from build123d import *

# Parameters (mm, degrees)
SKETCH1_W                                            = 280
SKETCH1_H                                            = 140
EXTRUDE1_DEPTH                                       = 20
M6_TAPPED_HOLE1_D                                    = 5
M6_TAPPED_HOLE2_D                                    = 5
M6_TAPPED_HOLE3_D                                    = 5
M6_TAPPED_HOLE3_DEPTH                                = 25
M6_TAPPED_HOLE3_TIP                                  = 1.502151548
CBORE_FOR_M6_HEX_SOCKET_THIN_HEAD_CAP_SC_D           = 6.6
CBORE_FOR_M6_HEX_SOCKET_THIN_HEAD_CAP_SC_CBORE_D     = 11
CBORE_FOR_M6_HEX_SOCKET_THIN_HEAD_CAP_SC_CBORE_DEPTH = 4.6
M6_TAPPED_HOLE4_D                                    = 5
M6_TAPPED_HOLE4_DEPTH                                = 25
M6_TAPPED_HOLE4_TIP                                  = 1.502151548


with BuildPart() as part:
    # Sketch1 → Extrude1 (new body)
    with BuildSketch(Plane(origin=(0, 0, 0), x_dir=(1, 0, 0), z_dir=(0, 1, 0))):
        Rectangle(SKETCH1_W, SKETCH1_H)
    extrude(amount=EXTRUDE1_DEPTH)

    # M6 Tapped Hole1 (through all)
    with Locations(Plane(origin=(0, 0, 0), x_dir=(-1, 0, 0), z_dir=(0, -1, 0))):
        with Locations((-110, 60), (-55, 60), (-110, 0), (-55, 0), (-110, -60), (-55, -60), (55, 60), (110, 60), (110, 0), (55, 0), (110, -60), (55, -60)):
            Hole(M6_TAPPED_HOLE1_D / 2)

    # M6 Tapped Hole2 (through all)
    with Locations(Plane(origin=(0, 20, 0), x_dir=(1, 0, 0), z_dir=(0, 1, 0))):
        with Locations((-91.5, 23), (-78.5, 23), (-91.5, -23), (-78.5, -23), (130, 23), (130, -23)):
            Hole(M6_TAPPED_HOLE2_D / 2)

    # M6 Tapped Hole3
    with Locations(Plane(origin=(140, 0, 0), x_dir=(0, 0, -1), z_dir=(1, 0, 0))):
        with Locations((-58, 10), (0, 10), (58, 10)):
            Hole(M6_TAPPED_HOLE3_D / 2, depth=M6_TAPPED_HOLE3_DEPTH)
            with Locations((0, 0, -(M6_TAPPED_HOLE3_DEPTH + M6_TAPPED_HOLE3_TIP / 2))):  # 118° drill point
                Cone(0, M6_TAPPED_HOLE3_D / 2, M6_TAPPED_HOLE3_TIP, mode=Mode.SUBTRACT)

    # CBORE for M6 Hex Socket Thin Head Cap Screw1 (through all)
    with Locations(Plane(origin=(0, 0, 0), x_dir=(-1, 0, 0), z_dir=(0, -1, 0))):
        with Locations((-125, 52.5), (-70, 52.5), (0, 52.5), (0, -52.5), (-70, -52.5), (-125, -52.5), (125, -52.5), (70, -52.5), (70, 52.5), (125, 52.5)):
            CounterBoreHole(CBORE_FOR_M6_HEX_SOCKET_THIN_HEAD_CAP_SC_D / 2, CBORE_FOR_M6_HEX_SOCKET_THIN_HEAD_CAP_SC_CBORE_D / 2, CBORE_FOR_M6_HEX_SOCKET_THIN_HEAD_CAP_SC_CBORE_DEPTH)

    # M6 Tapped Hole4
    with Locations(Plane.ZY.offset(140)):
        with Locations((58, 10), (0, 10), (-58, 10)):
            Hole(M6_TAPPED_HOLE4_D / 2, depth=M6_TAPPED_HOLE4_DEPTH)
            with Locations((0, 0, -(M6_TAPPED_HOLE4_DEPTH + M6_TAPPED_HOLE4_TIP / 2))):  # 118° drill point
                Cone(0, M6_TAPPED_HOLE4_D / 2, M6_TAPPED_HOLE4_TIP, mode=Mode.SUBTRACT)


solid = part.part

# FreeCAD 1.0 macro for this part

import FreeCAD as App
import Part
import Sketcher


def add_polygon(sketch, points):
    """Adds a closed chain of lines whose ends are joined by coincident constraints."""
    first, n = sketch.GeometryCount, len(points)
    for a, b in zip(points, points[1:] + points[:1]):
        sketch.addGeometry(Part.LineSegment(App.Vector(*a, 0), App.Vector(*b, 0)), False)
    for i in range(n):
        sketch.addConstraint(Sketcher.Constraint("Coincident", first + i, 2, first + (i + 1) % n, 1))

doc = App.newDocument("Part")
body = doc.addObject("PartDesign::Body", "Body")

sketch1 = doc.addObject("Sketcher::SketchObject", "Sketch")
body.addObject(sketch1)
sketch1.AttachmentSupport = (doc.XZ_Plane, [""])
sketch1.MapMode = "FlatFace"
add_polygon(sketch1, [(-140, -70), (-140, 70), (140, 70), (140, -70)])
sketch1.addConstraint(Sketcher.Constraint("Vertical", 0))
sketch1.addConstraint(Sketcher.Constraint("Horizontal", 1))
sketch1.addConstraint(Sketcher.Constraint("Vertical", 2))
sketch1.addConstraint(Sketcher.Constraint("Horizontal", 3))
sketch1.addConstraint(Sketcher.Constraint("Symmetric", 0, 2, 2, 2, -1, 1))
sketch1.addConstraint(Sketcher.Constraint("DistanceX", 1, 1, 1, 2, 280.0))
sketch1.addConstraint(Sketcher.Constraint("DistanceY", 0, 1, 0, 2, 140.0))
pad1 = doc.addObject("PartDesign::Pad", "Pad")
body.addObject(pad1)
pad1.Profile = sketch1
pad1.Length = 20
pad1.Reversed = True

sketch2 = doc.addObject("Sketcher::SketchObject", "Sketch001")
body.addObject(sketch2)
sketch2.AttachmentSupport = (doc.XZ_Plane, [""])
sketch2.MapMode = "FlatFace"
sketch2.addGeometry(Part.Circle(App.Vector(110, -60, 0), App.Vector(0, 0, 1), 2.5), False)
sketch2.addGeometry(Part.Circle(App.Vector(55, -60, 0), App.Vector(0, 0, 1), 2.5), False)
sketch2.addGeometry(Part.Circle(App.Vector(110, 0, 0), App.Vector(0, 0, 1), 2.5), False)
sketch2.addGeometry(Part.Circle(App.Vector(55, 0, 0), App.Vector(0, 0, 1), 2.5), False)
sketch2.addGeometry(Part.Circle(App.Vector(110, 60, 0), App.Vector(0, 0, 1), 2.5), False)
sketch2.addGeometry(Part.Circle(App.Vector(55, 60, 0), App.Vector(0, 0, 1), 2.5), False)
sketch2.addGeometry(Part.Circle(App.Vector(-55, -60, 0), App.Vector(0, 0, 1), 2.5), False)
sketch2.addGeometry(Part.Circle(App.Vector(-110, -60, 0), App.Vector(0, 0, 1), 2.5), False)
sketch2.addGeometry(Part.Circle(App.Vector(-110, 0, 0), App.Vector(0, 0, 1), 2.5), False)
sketch2.addGeometry(Part.Circle(App.Vector(-55, 0, 0), App.Vector(0, 0, 1), 2.5), False)
sketch2.addGeometry(Part.Circle(App.Vector(-110, 60, 0), App.Vector(0, 0, 1), 2.5), False)
sketch2.addGeometry(Part.Circle(App.Vector(-55, 60, 0), App.Vector(0, 0, 1), 2.5), False)
sketch2.addConstraint(Sketcher.Constraint("Equal", 0, 1))
sketch2.addConstraint(Sketcher.Constraint("Equal", 1, 2))
sketch2.addConstraint(Sketcher.Constraint("Equal", 2, 3))
sketch2.addConstraint(Sketcher.Constraint("Equal", 3, 4))
sketch2.addConstraint(Sketcher.Constraint("Equal", 4, 5))
sketch2.addConstraint(Sketcher.Constraint("Equal", 5, 6))
sketch2.addConstraint(Sketcher.Constraint("Equal", 6, 7))
sketch2.addConstraint(Sketcher.Constraint("Equal", 7, 8))
sketch2.addConstraint(Sketcher.Constraint("Equal", 8, 9))
sketch2.addConstraint(Sketcher.Constraint("Equal", 9, 10))
sketch2.addConstraint(Sketcher.Constraint("Equal", 10, 11))
sketch2.addConstraint(Sketcher.Constraint("Symmetric", 5, 3, 6, 3, -1, 1))
sketch2.addConstraint(Sketcher.Constraint("Symmetric", 4, 3, 7, 3, -1, 1))
sketch2.addConstraint(Sketcher.Constraint("Symmetric", 2, 3, 8, 3, -1, 1))
sketch2.addConstraint(Sketcher.Constraint("Symmetric", 3, 3, 9, 3, -1, 1))
sketch2.addConstraint(Sketcher.Constraint("Symmetric", 0, 3, 10, 3, -1, 1))
sketch2.addConstraint(Sketcher.Constraint("Symmetric", 1, 3, 11, 3, -1, 1))
sketch2.addConstraint(Sketcher.Constraint("Symmetric", 1, 3, 6, 3, -2))
sketch2.addConstraint(Sketcher.Constraint("Symmetric", 0, 3, 7, 3, -2))
sketch2.addConstraint(Sketcher.Constraint("PointOnObject", 2, 3, -1))
sketch2.addConstraint(Sketcher.Constraint("PointOnObject", 3, 3, -1))
sketch2.addConstraint(Sketcher.Constraint("Horizontal", 0, 3, 1, 3))
sketch2.addConstraint(Sketcher.Constraint("Vertical", 0, 3, 2, 3))
sketch2.addConstraint(Sketcher.Constraint("Vertical", 1, 3, 3, 3))
sketch2.addConstraint(Sketcher.Constraint("Diameter", 0, 5.0))
sketch2.addConstraint(Sketcher.Constraint("DistanceX", -1, 1, 0, 3, 110.0))
sketch2.addConstraint(Sketcher.Constraint("DistanceY", 0, 3, -1, 1, 60.0))
sketch2.addConstraint(Sketcher.Constraint("DistanceX", -1, 1, 1, 3, 55.0))
doc.recompute()
hole = doc.addObject("PartDesign::Hole", "Hole")
body.addObject(hole)
hole.Profile = sketch2
hole.ThreadType = "None"
hole.Diameter = 5
hole.DepthType = "ThroughAll"

sketch3 = doc.addObject("Sketcher::SketchObject", "Sketch002")
body.addObject(sketch3)
sketch3.AttachmentSupport = (doc.XZ_Plane, [""])
sketch3.MapMode = "FlatFace"
sketch3.AttachmentOffset = App.Placement(App.Vector(0, 0, -20), App.Rotation())
sketch3.addGeometry(Part.Circle(App.Vector(-91.5, -23, 0), App.Vector(0, 0, 1), 2.5), False)
sketch3.addGeometry(Part.Circle(App.Vector(-78.5, -23, 0), App.Vector(0, 0, 1), 2.5), False)
sketch3.addGeometry(Part.Circle(App.Vector(-91.5, 23, 0), App.Vector(0, 0, 1), 2.5), False)
sketch3.addGeometry(Part.Circle(App.Vector(-78.5, 23, 0), App.Vector(0, 0, 1), 2.5), False)
sketch3.addGeometry(Part.Circle(App.Vector(130, -23, 0), App.Vector(0, 0, 1), 2.5), False)
sketch3.addGeometry(Part.Circle(App.Vector(130, 23, 0), App.Vector(0, 0, 1), 2.5), False)
sketch3.addConstraint(Sketcher.Constraint("Equal", 0, 1))
sketch3.addConstraint(Sketcher.Constraint("Equal", 1, 2))
sketch3.addConstraint(Sketcher.Constraint("Equal", 2, 3))
sketch3.addConstraint(Sketcher.Constraint("Equal", 3, 4))
sketch3.addConstraint(Sketcher.Constraint("Equal", 4, 5))
sketch3.addConstraint(Sketcher.Constraint("Symmetric", 0, 3, 2, 3, -1))
sketch3.addConstraint(Sketcher.Constraint("Symmetric", 1, 3, 3, 3, -1))
sketch3.addConstraint(Sketcher.Constraint("Symmetric", 4, 3, 5, 3, -1))
sketch3.addConstraint(Sketcher.Constraint("Horizontal", 0, 3, 1, 3))
sketch3.addConstraint(Sketcher.Constraint("Horizontal", 1, 3, 4, 3))
sketch3.addConstraint(Sketcher.Constraint("Diameter", 0, 5.0))
sketch3.addConstraint(Sketcher.Constraint("DistanceY", 0, 3, -1, 1, 23.0))
sketch3.addConstraint(Sketcher.Constraint("DistanceX", -1, 1, 4, 3, 130.0))
sketch3.addConstraint(Sketcher.Constraint("DistanceX", 0, 3, 1, 3, 13.0))
sketch3.addConstraint(Sketcher.Constraint("DistanceX", 0, 3, -1, 1, 91.5))
doc.recompute()
hole2 = doc.addObject("PartDesign::Hole", "Hole001")
body.addObject(hole2)
hole2.Profile = sketch3
hole2.ThreadType = "None"
hole2.Diameter = 5
hole2.DepthType = "ThroughAll"
hole2.Reversed = True

sketch4 = doc.addObject("Sketcher::SketchObject", "Sketch003")
body.addObject(sketch4)
sketch4.AttachmentSupport = (doc.YZ_Plane, [""])
sketch4.MapMode = "FlatFace"
sketch4.AttachmentOffset = App.Placement(App.Vector(0, 0, 140), App.Rotation())
sketch4.addGeometry(Part.Circle(App.Vector(10, 58, 0), App.Vector(0, 0, 1), 2.5), False)
sketch4.addGeometry(Part.Circle(App.Vector(10, 0, 0), App.Vector(0, 0, 1), 2.5), False)
sketch4.addGeometry(Part.Circle(App.Vector(10, -58, 0), App.Vector(0, 0, 1), 2.5), False)
sketch4.addConstraint(Sketcher.Constraint("Equal", 0, 1))
sketch4.addConstraint(Sketcher.Constraint("Equal", 1, 2))
sketch4.addConstraint(Sketcher.Constraint("Symmetric", 0, 3, 2, 3, -1))
sketch4.addConstraint(Sketcher.Constraint("PointOnObject", 1, 3, -1))
sketch4.addConstraint(Sketcher.Constraint("Vertical", 0, 3, 1, 3))
sketch4.addConstraint(Sketcher.Constraint("Diameter", 0, 5.0))
sketch4.addConstraint(Sketcher.Constraint("DistanceX", -1, 1, 0, 3, 10.0))
sketch4.addConstraint(Sketcher.Constraint("DistanceY", -1, 1, 0, 3, 58.0))
doc.recompute()
hole3 = doc.addObject("PartDesign::Hole", "Hole002")
body.addObject(hole3)
hole3.Profile = sketch4
hole3.ThreadType = "None"
hole3.Diameter = 5
hole3.DepthType = "Dimension"
hole3.Depth = 25
hole3.DrillPoint = "Angled"
hole3.DrillPointAngle = 118

sketch5 = doc.addObject("Sketcher::SketchObject", "Sketch004")
body.addObject(sketch5)
sketch5.AttachmentSupport = (doc.XZ_Plane, [""])
sketch5.MapMode = "FlatFace"
sketch5.addGeometry(Part.Circle(App.Vector(125, -52.5, 0), App.Vector(0, 0, 1), 3.3), False)
sketch5.addGeometry(Part.Circle(App.Vector(70, -52.5, 0), App.Vector(0, 0, 1), 3.3), False)
sketch5.addGeometry(Part.Circle(App.Vector(0, -52.5, 0), App.Vector(0, 0, 1), 3.3), False)
sketch5.addGeometry(Part.Circle(App.Vector(0, 52.5, 0), App.Vector(0, 0, 1), 3.3), False)
sketch5.addGeometry(Part.Circle(App.Vector(70, 52.5, 0), App.Vector(0, 0, 1), 3.3), False)
sketch5.addGeometry(Part.Circle(App.Vector(125, 52.5, 0), App.Vector(0, 0, 1), 3.3), False)
sketch5.addGeometry(Part.Circle(App.Vector(-125, 52.5, 0), App.Vector(0, 0, 1), 3.3), False)
sketch5.addGeometry(Part.Circle(App.Vector(-70, 52.5, 0), App.Vector(0, 0, 1), 3.3), False)
sketch5.addGeometry(Part.Circle(App.Vector(-70, -52.5, 0), App.Vector(0, 0, 1), 3.3), False)
sketch5.addGeometry(Part.Circle(App.Vector(-125, -52.5, 0), App.Vector(0, 0, 1), 3.3), False)
sketch5.addConstraint(Sketcher.Constraint("Equal", 0, 1))
sketch5.addConstraint(Sketcher.Constraint("Equal", 1, 2))
sketch5.addConstraint(Sketcher.Constraint("Equal", 2, 3))
sketch5.addConstraint(Sketcher.Constraint("Equal", 3, 4))
sketch5.addConstraint(Sketcher.Constraint("Equal", 4, 5))
sketch5.addConstraint(Sketcher.Constraint("Equal", 5, 6))
sketch5.addConstraint(Sketcher.Constraint("Equal", 6, 7))
sketch5.addConstraint(Sketcher.Constraint("Equal", 7, 8))
sketch5.addConstraint(Sketcher.Constraint("Equal", 8, 9))
sketch5.addConstraint(Sketcher.Constraint("Symmetric", 2, 3, 3, 3, -1, 1))
sketch5.addConstraint(Sketcher.Constraint("Symmetric", 0, 3, 6, 3, -1, 1))
sketch5.addConstraint(Sketcher.Constraint("Symmetric", 1, 3, 7, 3, -1, 1))
sketch5.addConstraint(Sketcher.Constraint("Symmetric", 4, 3, 8, 3, -1, 1))
sketch5.addConstraint(Sketcher.Constraint("Symmetric", 5, 3, 9, 3, -1, 1))
sketch5.addConstraint(Sketcher.Constraint("Symmetric", 5, 3, 6, 3, -2))
sketch5.addConstraint(Sketcher.Constraint("Symmetric", 4, 3, 7, 3, -2))
sketch5.addConstraint(Sketcher.Constraint("PointOnObject", 2, 3, -2))
sketch5.addConstraint(Sketcher.Constraint("Horizontal", 0, 3, 1, 3))
sketch5.addConstraint(Sketcher.Constraint("Horizontal", 1, 3, 2, 3))
sketch5.addConstraint(Sketcher.Constraint("Diameter", 0, 6.6))
sketch5.addConstraint(Sketcher.Constraint("DistanceX", -1, 1, 0, 3, 125.0))
sketch5.addConstraint(Sketcher.Constraint("DistanceX", -1, 1, 1, 3, 70.0))
sketch5.addConstraint(Sketcher.Constraint("DistanceY", 2, 3, 3, 3, 105.0))
doc.recompute()
hole4 = doc.addObject("PartDesign::Hole", "Hole003")
body.addObject(hole4)
hole4.Profile = sketch5
hole4.ThreadType = "None"
hole4.Diameter = 6.6
hole4.DepthType = "ThroughAll"
hole4.HoleCutType = "Counterbore"
hole4.HoleCutDiameter = 11
hole4.HoleCutDepth = 4.6

sketch6 = doc.addObject("Sketcher::SketchObject", "Sketch005")
body.addObject(sketch6)
sketch6.AttachmentSupport = (doc.YZ_Plane, [""])
sketch6.MapMode = "FlatFace"
sketch6.AttachmentOffset = App.Placement(App.Vector(0, 0, -140), App.Rotation())
sketch6.addGeometry(Part.Circle(App.Vector(10, 58, 0), App.Vector(0, 0, 1), 2.5), False)
sketch6.addGeometry(Part.Circle(App.Vector(10, 0, 0), App.Vector(0, 0, 1), 2.5), False)
sketch6.addGeometry(Part.Circle(App.Vector(10, -58, 0), App.Vector(0, 0, 1), 2.5), False)
sketch6.addConstraint(Sketcher.Constraint("Equal", 0, 1))
sketch6.addConstraint(Sketcher.Constraint("Equal", 1, 2))
sketch6.addConstraint(Sketcher.Constraint("Symmetric", 0, 3, 2, 3, -1))
sketch6.addConstraint(Sketcher.Constraint("PointOnObject", 1, 3, -1))
sketch6.addConstraint(Sketcher.Constraint("Vertical", 0, 3, 1, 3))
sketch6.addConstraint(Sketcher.Constraint("Diameter", 0, 5.0))
sketch6.addConstraint(Sketcher.Constraint("DistanceX", -1, 1, 0, 3, 10.0))
sketch6.addConstraint(Sketcher.Constraint("DistanceY", -1, 1, 0, 3, 58.0))
doc.recompute()
hole5 = doc.addObject("PartDesign::Hole", "Hole004")
body.addObject(hole5)
hole5.Profile = sketch6
hole5.ThreadType = "None"
hole5.Diameter = 5
hole5.DepthType = "Dimension"
hole5.Depth = 25
hole5.DrillPoint = "Angled"
hole5.DrillPointAngle = 118
hole5.Reversed = True

doc.recompute()
